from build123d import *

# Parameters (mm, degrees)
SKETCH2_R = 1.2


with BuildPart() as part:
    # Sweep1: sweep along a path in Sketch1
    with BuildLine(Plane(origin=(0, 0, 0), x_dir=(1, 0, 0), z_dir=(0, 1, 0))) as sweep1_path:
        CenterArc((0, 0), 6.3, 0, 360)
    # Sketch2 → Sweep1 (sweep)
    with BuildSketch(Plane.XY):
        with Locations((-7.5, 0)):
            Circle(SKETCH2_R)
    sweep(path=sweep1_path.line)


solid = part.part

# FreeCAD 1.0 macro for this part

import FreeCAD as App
import Part
import Sketcher
Q = App.Units.Quantity

doc = App.newDocument("Part")
body = doc.addObject("PartDesign::Body", "Body")

sketch1 = body.newObject("Sketcher::SketchObject", "Sketch")
sketch1.AttachmentSupport = (doc.getObject("XY_Plane"), [""])
sketch1.MapMode = "FlatFace"
sketch1.addGeometry(Part.Circle(App.Vector(-7.5, 0, 0), App.Vector(0, 0, 1), 1.2), False)
sketch1.addConstraint(Sketcher.Constraint("PointOnObject", 0, 3, -1))
sketch1.addConstraint(Sketcher.Constraint("Diameter", 0, Q("2.4 mm")))
sketch1.addConstraint(Sketcher.Constraint("DistanceX", 0, 3, -1, 1, Q("7.5 mm")))

sketch2 = body.newObject("Sketcher::SketchObject", "Sketch001")
sketch2.AttachmentSupport = (doc.getObject("XZ_Plane"), [""])
sketch2.MapMode = "FlatFace"
sketch2.addGeometry(Part.Circle(App.Vector(0, 0, 0), App.Vector(0, 0, 1), 6.3), False)
sketch2.addConstraint(Sketcher.Constraint("Coincident", 0, 3, -1, 1))
sketch2.addConstraint(Sketcher.Constraint("Diameter", 0, Q("12.6 mm")))
doc.recompute()

additivepipe = body.newObject("PartDesign::AdditivePipe", "AdditivePipe")
additivepipe.Profile = sketch1
additivepipe.Spine = (sketch2, ["Edge1"])

doc.recompute()
